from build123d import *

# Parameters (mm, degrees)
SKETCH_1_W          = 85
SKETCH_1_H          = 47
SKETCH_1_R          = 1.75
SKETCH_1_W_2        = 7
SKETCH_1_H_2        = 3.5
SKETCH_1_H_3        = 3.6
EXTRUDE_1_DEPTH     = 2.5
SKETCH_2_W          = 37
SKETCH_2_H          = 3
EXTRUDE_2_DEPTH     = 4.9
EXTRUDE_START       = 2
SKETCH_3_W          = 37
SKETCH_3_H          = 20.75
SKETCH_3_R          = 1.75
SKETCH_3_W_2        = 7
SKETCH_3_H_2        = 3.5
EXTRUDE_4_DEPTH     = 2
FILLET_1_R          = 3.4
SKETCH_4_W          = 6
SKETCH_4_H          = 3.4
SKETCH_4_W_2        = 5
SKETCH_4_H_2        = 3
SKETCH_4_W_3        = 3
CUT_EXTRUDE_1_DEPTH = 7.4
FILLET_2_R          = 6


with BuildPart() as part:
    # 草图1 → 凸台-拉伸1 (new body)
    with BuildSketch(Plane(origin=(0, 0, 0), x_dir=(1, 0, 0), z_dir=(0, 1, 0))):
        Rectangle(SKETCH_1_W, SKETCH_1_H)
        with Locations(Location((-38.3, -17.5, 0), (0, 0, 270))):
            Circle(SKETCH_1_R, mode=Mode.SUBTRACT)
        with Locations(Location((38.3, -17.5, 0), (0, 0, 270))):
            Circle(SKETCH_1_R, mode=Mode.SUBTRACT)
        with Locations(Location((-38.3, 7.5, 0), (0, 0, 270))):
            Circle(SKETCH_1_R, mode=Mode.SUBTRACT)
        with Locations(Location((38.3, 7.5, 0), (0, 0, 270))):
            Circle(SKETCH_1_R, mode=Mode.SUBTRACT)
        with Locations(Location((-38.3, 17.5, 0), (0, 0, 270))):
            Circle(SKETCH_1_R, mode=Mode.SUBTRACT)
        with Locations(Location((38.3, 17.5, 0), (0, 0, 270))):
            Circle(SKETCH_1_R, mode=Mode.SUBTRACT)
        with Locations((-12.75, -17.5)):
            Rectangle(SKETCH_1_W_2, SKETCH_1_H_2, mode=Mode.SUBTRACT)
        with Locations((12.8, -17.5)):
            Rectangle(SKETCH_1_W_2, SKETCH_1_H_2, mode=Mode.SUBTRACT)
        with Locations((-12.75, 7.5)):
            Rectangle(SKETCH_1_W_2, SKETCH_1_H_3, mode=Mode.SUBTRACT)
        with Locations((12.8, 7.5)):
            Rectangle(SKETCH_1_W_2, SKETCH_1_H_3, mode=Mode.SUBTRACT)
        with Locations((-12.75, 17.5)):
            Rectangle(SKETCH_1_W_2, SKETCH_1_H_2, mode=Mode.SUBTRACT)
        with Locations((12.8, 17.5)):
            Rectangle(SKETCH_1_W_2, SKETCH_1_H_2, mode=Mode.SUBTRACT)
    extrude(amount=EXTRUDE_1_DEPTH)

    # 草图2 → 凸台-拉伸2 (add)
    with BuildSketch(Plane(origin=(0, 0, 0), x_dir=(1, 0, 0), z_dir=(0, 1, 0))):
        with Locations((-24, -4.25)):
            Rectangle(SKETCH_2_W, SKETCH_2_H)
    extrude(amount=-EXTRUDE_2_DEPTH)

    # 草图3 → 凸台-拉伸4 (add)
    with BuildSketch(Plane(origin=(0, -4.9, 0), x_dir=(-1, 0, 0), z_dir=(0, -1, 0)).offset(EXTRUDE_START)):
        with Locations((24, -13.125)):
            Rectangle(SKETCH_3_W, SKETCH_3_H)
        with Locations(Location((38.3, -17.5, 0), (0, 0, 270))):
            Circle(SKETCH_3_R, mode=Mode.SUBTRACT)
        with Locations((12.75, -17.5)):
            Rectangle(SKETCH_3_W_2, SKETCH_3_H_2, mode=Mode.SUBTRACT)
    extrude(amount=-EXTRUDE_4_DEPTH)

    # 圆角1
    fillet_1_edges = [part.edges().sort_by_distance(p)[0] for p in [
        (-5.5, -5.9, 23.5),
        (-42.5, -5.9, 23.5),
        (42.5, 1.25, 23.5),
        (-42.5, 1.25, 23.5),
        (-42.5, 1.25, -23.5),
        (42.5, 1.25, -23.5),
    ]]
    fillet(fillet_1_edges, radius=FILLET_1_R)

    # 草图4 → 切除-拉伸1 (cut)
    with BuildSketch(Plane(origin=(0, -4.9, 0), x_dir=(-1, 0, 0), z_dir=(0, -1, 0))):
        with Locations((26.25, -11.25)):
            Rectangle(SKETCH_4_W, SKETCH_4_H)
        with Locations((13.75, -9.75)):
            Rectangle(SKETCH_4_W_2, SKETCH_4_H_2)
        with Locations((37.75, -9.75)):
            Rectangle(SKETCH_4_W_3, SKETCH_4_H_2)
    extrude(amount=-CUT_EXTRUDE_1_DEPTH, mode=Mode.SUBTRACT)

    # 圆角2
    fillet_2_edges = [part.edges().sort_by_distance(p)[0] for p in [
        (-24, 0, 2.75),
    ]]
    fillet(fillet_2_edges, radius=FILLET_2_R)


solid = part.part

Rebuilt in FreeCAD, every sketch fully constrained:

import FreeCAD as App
import Part
import Sketcher
Q = App.Units.Quantity


def edges_at(feature, points):
    """Names of the edges that pass closest to the given points."""
    edges = feature.Shape.Edges
    near = lambda p: min(range(len(edges)), key=lambda i: edges[i].distToShape(Part.Vertex(*p))[0])
    return sorted({f"Edge{near(p) + 1}" for p in points})

doc = App.newDocument("Part")
params = doc.addObject("Spreadsheet::Sheet", "Params")
for row, (alias, value) in enumerate([
    ("sketch1_diameter", "3.5 mm"),
    ("sketch1_width", "85 mm"),
    ("sketch1_width2", "7 mm"),
    ("sketch1_height", "47 mm"),
    ("sketch1_height2", "3.5 mm"),
    ("pad1_length", "2.5 mm"),
    ("sketch2_width", "37 mm"),
    ("sketch2_height", "3 mm"),
    ("pad2_length", "4.9 mm"),
    ("sketch3_diameter", "3.5 mm"),
    ("sketch3_width", "37 mm"),
    ("sketch3_width2", "7 mm"),
    ("sketch3_height", "3.5 mm"),
    ("sketch3_height2", "20.75 mm"),
    ("pad3_length", "2 mm"),
    ("fillet_radius", "3.4 mm"),
    ("sketch4_width", "6 mm"),
    ("sketch4_width2", "5 mm"),
    ("sketch4_width3", "3 mm"),
    ("sketch4_height", "3.4 mm"),
    ("pocket1_length", "7.4 mm"),
    ("fillet2_radius", "6 mm"),
], start=1):
    params.set(f"A{row}", alias)
    params.set(f"B{row}", "=" + value)
    params.setAlias(f"B{row}", alias)

body = doc.addObject("PartDesign::Body", "Body")

sketch1 = body.newObject("Sketcher::SketchObject", "Sketch")
sketch1.AttachmentSupport = (doc.getObject("XZ_Plane"), [""])
sketch1.MapMode = "FlatFace"
sketch1.addGeometry([
    Part.LineSegment(App.Vector(-42.5, -23.5, 0), App.Vector(-42.5, 23.5, 0)),
    Part.LineSegment(App.Vector(-42.5, 23.5, 0), App.Vector(42.5, 23.5, 0)),
    Part.LineSegment(App.Vector(42.5, 23.5, 0), App.Vector(42.5, -23.5, 0)),
    Part.LineSegment(App.Vector(42.5, -23.5, 0), App.Vector(-42.5, -23.5, 0)),
    Part.Circle(App.Vector(-38.3, 17.5, 0), App.Vector(0, 0, 1), 1.75),
    Part.LineSegment(App.Vector(-9.25, 19.25, 0), App.Vector(-16.25, 19.25, 0)),
    Part.LineSegment(App.Vector(-16.25, 19.25, 0), App.Vector(-16.25, 15.75, 0)),
    Part.LineSegment(App.Vector(-16.25, 15.75, 0), App.Vector(-9.25, 15.75, 0)),
    Part.LineSegment(App.Vector(-9.25, 15.75, 0), App.Vector(-9.25, 19.25, 0)),
    Part.LineSegment(App.Vector(16.3, 19.25, 0), App.Vector(9.3, 19.25, 0)),
    Part.LineSegment(App.Vector(9.3, 19.25, 0), App.Vector(9.3, 15.75, 0)),
    Part.LineSegment(App.Vector(9.3, 15.75, 0), App.Vector(16.3, 15.75, 0)),
    Part.LineSegment(App.Vector(16.3, 15.75, 0), App.Vector(16.3, 19.25, 0)),
    Part.Circle(App.Vector(38.3, 17.5, 0), App.Vector(0, 0, 1), 1.75),
    Part.Circle(App.Vector(-38.3, -7.5, 0), App.Vector(0, 0, 1), 1.75),
    Part.LineSegment(App.Vector(-9.25, -5.7, 0), App.Vector(-16.25, -5.7, 0)),
    Part.LineSegment(App.Vector(-16.25, -5.7, 0), App.Vector(-16.25, -9.3, 0)),
    Part.LineSegment(App.Vector(-16.25, -9.3, 0), App.Vector(-9.25, -9.3, 0)),
    Part.LineSegment(App.Vector(-9.25, -9.3, 0), App.Vector(-9.25, -5.7, 0)),
    Part.Circle(App.Vector(-38.3, -17.5, 0), App.Vector(0, 0, 1), 1.75),
    Part.LineSegment(App.Vector(-9.25, -15.75, 0), App.Vector(-16.25, -15.75, 0)),
    Part.LineSegment(App.Vector(-16.25, -15.75, 0), App.Vector(-16.25, -19.25, 0)),
    Part.LineSegment(App.Vector(-16.25, -19.25, 0), App.Vector(-9.25, -19.25, 0)),
    Part.LineSegment(App.Vector(-9.25, -19.25, 0), App.Vector(-9.25, -15.75, 0)),
    Part.LineSegment(App.Vector(16.3, -5.7, 0), App.Vector(9.3, -5.7, 0)),
    Part.LineSegment(App.Vector(9.3, -5.7, 0), App.Vector(9.3, -9.3, 0)),
    Part.LineSegment(App.Vector(9.3, -9.3, 0), App.Vector(16.3, -9.3, 0)),
    Part.LineSegment(App.Vector(16.3, -9.3, 0), App.Vector(16.3, -5.7, 0)),
    Part.Circle(App.Vector(38.3, -7.5, 0), App.Vector(0, 0, 1), 1.75),
    Part.LineSegment(App.Vector(16.3, -15.75, 0), App.Vector(9.3, -15.75, 0)),
    Part.LineSegment(App.Vector(9.3, -15.75, 0), App.Vector(9.3, -19.25, 0)),
    Part.LineSegment(App.Vector(9.3, -19.25, 0), App.Vector(16.3, -19.25, 0)),
    Part.LineSegment(App.Vector(16.3, -19.25, 0), App.Vector(16.3, -15.75, 0)),
    Part.Circle(App.Vector(38.3, -17.5, 0), App.Vector(0, 0, 1), 1.75),
], False)
sketch1.addConstraint([
    Sketcher.Constraint("Coincident", 0, 2, 1, 1),
    Sketcher.Constraint("Coincident", 1, 2, 2, 1),
    Sketcher.Constraint("Coincident", 2, 2, 3, 1),
    Sketcher.Constraint("Coincident", 3, 2, 0, 1),
    Sketcher.Constraint("Coincident", 5, 2, 6, 1),
    Sketcher.Constraint("Coincident", 6, 2, 7, 1),
    Sketcher.Constraint("Coincident", 7, 2, 8, 1),
    Sketcher.Constraint("Coincident", 8, 2, 5, 1),
    Sketcher.Constraint("Coincident", 9, 2, 10, 1),
    Sketcher.Constraint("Coincident", 10, 2, 11, 1),
    Sketcher.Constraint("Coincident", 11, 2, 12, 1),
    Sketcher.Constraint("Coincident", 12, 2, 9, 1),
    Sketcher.Constraint("Coincident", 15, 2, 16, 1),
    Sketcher.Constraint("Coincident", 16, 2, 17, 1),
    Sketcher.Constraint("Coincident", 17, 2, 18, 1),
    Sketcher.Constraint("Coincident", 18, 2, 15, 1),
    Sketcher.Constraint("Coincident", 20, 2, 21, 1),
    Sketcher.Constraint("Coincident", 21, 2, 22, 1),
    Sketcher.Constraint("Coincident", 22, 2, 23, 1),
    Sketcher.Constraint("Coincident", 23, 2, 20, 1),
    Sketcher.Constraint("Coincident", 24, 2, 25, 1),
    Sketcher.Constraint("Coincident", 25, 2, 26, 1),
    Sketcher.Constraint("Coincident", 26, 2, 27, 1),
    Sketcher.Constraint("Coincident", 27, 2, 24, 1),
    Sketcher.Constraint("Coincident", 29, 2, 30, 1),
    Sketcher.Constraint("Coincident", 30, 2, 31, 1),
    Sketcher.Constraint("Coincident", 31, 2, 32, 1),
    Sketcher.Constraint("Coincident", 32, 2, 29, 1),
    Sketcher.Constraint("Vertical", 0),
    Sketcher.Constraint("Horizontal", 1),
    Sketcher.Constraint("Vertical", 2),
    Sketcher.Constraint("Horizontal", 3),
    Sketcher.Constraint("Horizontal", 5),
    Sketcher.Constraint("Vertical", 6),
    Sketcher.Constraint("Horizontal", 7),
    Sketcher.Constraint("Vertical", 8),
    Sketcher.Constraint("Horizontal", 9),
    Sketcher.Constraint("Vertical", 10),
    Sketcher.Constraint("Horizontal", 11),
    Sketcher.Constraint("Vertical", 12),
    Sketcher.Constraint("Horizontal", 15),
    Sketcher.Constraint("Vertical", 16),
    Sketcher.Constraint("Horizontal", 17),
    Sketcher.Constraint("Vertical", 18),
    Sketcher.Constraint("Horizontal", 20),
    Sketcher.Constraint("Vertical", 21),
    Sketcher.Constraint("Horizontal", 22),
    Sketcher.Constraint("Vertical", 23),
    Sketcher.Constraint("Horizontal", 24),
    Sketcher.Constraint("Vertical", 25),
    Sketcher.Constraint("Horizontal", 26),
    Sketcher.Constraint("Vertical", 27),
    Sketcher.Constraint("Horizontal", 29),
    Sketcher.Constraint("Vertical", 30),
    Sketcher.Constraint("Horizontal", 31),
    Sketcher.Constraint("Vertical", 32),
    Sketcher.Constraint("Equal", 4, 13),
    Sketcher.Constraint("Equal", 13, 14),
    Sketcher.Constraint("Equal", 14, 19),
    Sketcher.Constraint("Equal", 19, 28),
    Sketcher.Constraint("Equal", 28, 33),
    Sketcher.Constraint("Symmetric", 13, 3, 19, 3, -1, 1),
    Sketcher.Constraint("Symmetric", 4, 3, 33, 3, -1, 1),
    Sketcher.Constraint("Symmetric", 0, 2, 2, 2, -1, 1),
    Sketcher.Constraint("Symmetric", 4, 3, 13, 3, -2),
    Sketcher.Constraint("Symmetric", 14, 3, 28, 3, -2),
    Sketcher.Constraint("Symmetric", 6, 2, 20, 2, -1),
    Sketcher.Constraint("Symmetric", 8, 2, 22, 2, -1),
    Sketcher.Constraint("Symmetric", 10, 2, 29, 2, -1),
    Sketcher.Constraint("Symmetric", 12, 2, 31, 2, -1),
    Sketcher.Constraint("Horizontal", 8, 2, 9, 2),
    Sketcher.Constraint("Horizontal", 7, 2, 10, 2),
    Sketcher.Constraint("Horizontal", 18, 2, 24, 2),
    Sketcher.Constraint("Horizontal", 17, 2, 25, 2),
    Sketcher.Constraint("Vertical", 4, 3, 14, 3),
    Sketcher.Constraint("Vertical", 6, 2, 15, 2),
    Sketcher.Constraint("Vertical", 8, 2, 17, 2),
    Sketcher.Constraint("Vertical", 10, 2, 24, 2),
    Sketcher.Constraint("Vertical", 12, 2, 26, 2),
    Sketcher.Constraint("Equal", 7, 9),
    Sketcher.Constraint("Diameter", 4, Q("3.5 mm")),
    Sketcher.Constraint("DistanceX", 1, 1, 1, 2, Q("85 mm")),
    Sketcher.Constraint("DistanceX", 5, 2, 5, 1, Q("7 mm")),
    Sketcher.Constraint("DistanceY", 0, 1, 0, 2, Q("47 mm")),
    Sketcher.Constraint("DistanceY", 6, 2, 6, 1, Q("3.5 mm")),
    Sketcher.Constraint("DistanceY", 16, 2, 16, 1, Q("3.6 mm")),
    Sketcher.Constraint("DistanceY", 14, 3, 4, 3, Q("25 mm")),
    Sketcher.Constraint("DistanceY", 19, 3, 14, 3, Q("10 mm")),
    Sketcher.Constraint("DistanceX", 9, 2, 13, 3, Q("29 mm")),
    Sketcher.Constraint("DistanceX", 4, 3, -1, 1, Q("38.3 mm")),
    Sketcher.Constraint("DistanceY", 15, 2, -1, 1, Q("5.7 mm")),
    Sketcher.Constraint("DistanceX", 5, 2, -1, 1, Q("16.25 mm")),
    Sketcher.Constraint("DistanceY", -1, 1, 5, 2, Q("19.25 mm")),
])
sketch1.setExpression("Constraints[80]", "Params.sketch1_diameter")
sketch1.setExpression("Constraints[81]", "Params.sketch1_width")
sketch1.setExpression("Constraints[82]", "Params.sketch1_width2")
sketch1.setExpression("Constraints[83]", "Params.sketch1_height")
sketch1.setExpression("Constraints[84]", "Params.sketch1_height2")
pad1 = body.newObject("PartDesign::Pad", "Pad")
pad1.Profile = sketch1
pad1.setExpression("Length", "Params.pad1_length")
pad1.Reversed = True

sketch2 = body.newObject("Sketcher::SketchObject", "Sketch001")
sketch2.AttachmentSupport = (doc.getObject("XZ_Plane"), [""])
sketch2.MapMode = "FlatFace"
sketch2.addGeometry([
    Part.LineSegment(App.Vector(-42.5, 2.75, 0), App.Vector(-42.5, 5.75, 0)),
    Part.LineSegment(App.Vector(-42.5, 5.75, 0), App.Vector(-5.5, 5.75, 0)),
    Part.LineSegment(App.Vector(-5.5, 5.75, 0), App.Vector(-5.5, 2.75, 0)),
    Part.LineSegment(App.Vector(-5.5, 2.75, 0), App.Vector(-42.5, 2.75, 0)),
], False)
sketch2.addConstraint([
    Sketcher.Constraint("Coincident", 0, 2, 1, 1),
    Sketcher.Constraint("Coincident", 1, 2, 2, 1),
    Sketcher.Constraint("Coincident", 2, 2, 3, 1),
    Sketcher.Constraint("Coincident", 3, 2, 0, 1),
    Sketcher.Constraint("Vertical", 0),
    Sketcher.Constraint("Horizontal", 1),
    Sketcher.Constraint("Vertical", 2),
    Sketcher.Constraint("Horizontal", 3),
    Sketcher.Constraint("DistanceX", 1, 1, 1, 2, Q("37 mm")),
    Sketcher.Constraint("DistanceY", 0, 1, 0, 2, Q("3 mm")),
    Sketcher.Constraint("DistanceX", 0, 2, -1, 1, Q("42.5 mm")),
    Sketcher.Constraint("DistanceY", -1, 1, 0, 2, Q("5.75 mm")),
])
sketch2.setExpression("Constraints[8]", "Params.sketch2_width")
sketch2.setExpression("Constraints[9]", "Params.sketch2_height")
pad2 = body.newObject("PartDesign::Pad", "Pad001")
pad2.Profile = sketch2
pad2.setExpression("Length", "Params.pad2_length")

sketch3 = body.newObject("Sketcher::SketchObject", "Sketch002")
sketch3.AttachmentSupport = (doc.getObject("XZ_Plane"), [""])
sketch3.MapMode = "FlatFace"
sketch3.AttachmentOffset = App.Placement(App.Vector(0, 0, 6.9), App.Rotation())
sketch3.addGeometry([
    Part.LineSegment(App.Vector(-5.5, 2.75, 0), App.Vector(-5.5, 23.5, 0)),
    Part.LineSegment(App.Vector(-5.5, 23.5, 0), App.Vector(-42.5, 23.5, 0)),
    Part.LineSegment(App.Vector(-42.5, 23.5, 0), App.Vector(-42.5, 2.75, 0)),
    Part.LineSegment(App.Vector(-42.5, 2.75, 0), App.Vector(-5.5, 2.75, 0)),
    Part.LineSegment(App.Vector(-16.25, 19.25, 0), App.Vector(-9.25, 19.25, 0)),
    Part.LineSegment(App.Vector(-9.25, 19.25, 0), App.Vector(-9.25, 15.75, 0)),
    Part.LineSegment(App.Vector(-9.25, 15.75, 0), App.Vector(-16.25, 15.75, 0)),
    Part.LineSegment(App.Vector(-16.25, 15.75, 0), App.Vector(-16.25, 19.25, 0)),
    Part.Circle(App.Vector(-38.3, 17.5, 0), App.Vector(0, 0, 1), 1.75),
], False)
sketch3.addConstraint([
    Sketcher.Constraint("Coincident", 0, 2, 1, 1),
    Sketcher.Constraint("Coincident", 1, 2, 2, 1),
    Sketcher.Constraint("Coincident", 2, 2, 3, 1),
    Sketcher.Constraint("Coincident", 3, 2, 0, 1),
    Sketcher.Constraint("Coincident", 4, 2, 5, 1),
    Sketcher.Constraint("Coincident", 5, 2, 6, 1),
    Sketcher.Constraint("Coincident", 6, 2, 7, 1),
    Sketcher.Constraint("Coincident", 7, 2, 4, 1),
    Sketcher.Constraint("Vertical", 0),
    Sketcher.Constraint("Horizontal", 1),
    Sketcher.Constraint("Vertical", 2),
    Sketcher.Constraint("Horizontal", 3),
    Sketcher.Constraint("Horizontal", 4),
    Sketcher.Constraint("Vertical", 5),
    Sketcher.Constraint("Horizontal", 6),
    Sketcher.Constraint("Vertical", 7),
    Sketcher.Constraint("Diameter", 8, Q("3.5 mm")),
    Sketcher.Constraint("DistanceX", 1, 2, 1, 1, Q("37 mm")),
    Sketcher.Constraint("DistanceX", 4, 1, 4, 2, Q("7 mm")),
    Sketcher.Constraint("DistanceY", 5, 2, 5, 1, Q("3.5 mm")),
    Sketcher.Constraint("DistanceY", 8, 3, 0, 2, Q("6 mm")),
    Sketcher.Constraint("DistanceY", 3, 2, 5, 2, Q("13 mm")),
    Sketcher.Constraint("DistanceY", 0, 1, 0, 2, Q("20.75 mm")),
    Sketcher.Constraint("DistanceX", 8, 3, -1, 1, Q("38.3 mm")),
    Sketcher.Constraint("DistanceY", -1, 1, 8, 3, Q("17.5 mm")),
    Sketcher.Constraint("DistanceX", 0, 2, -1, 1, Q("5.5 mm")),
    Sketcher.Constraint("DistanceX", 4, 2, -1, 1, Q("9.25 mm")),
])
sketch3.setExpression("Constraints[16]", "Params.sketch3_diameter")
sketch3.setExpression("Constraints[17]", "Params.sketch3_width")
sketch3.setExpression("Constraints[18]", "Params.sketch3_width2")
sketch3.setExpression("Constraints[19]", "Params.sketch3_height")
sketch3.setExpression("Constraints[22]", "Params.sketch3_height2")
pad3 = body.newObject("PartDesign::Pad", "Pad002")
pad3.Profile = sketch3
pad3.setExpression("Length", "Params.pad3_length")
pad3.Reversed = True
doc.recompute()

fillet = body.newObject("PartDesign::Fillet", "Fillet")
fillet.Base = (pad3, edges_at(pad3, [
    (-5.5, -5.9, 23.5),
    (-42.5, -5.9, 23.5),
    (42.5, 1.25, 23.5),
    (-42.5, 1.25, 23.5),
    (-42.5, 1.25, -23.5),
    (42.5, 1.25, -23.5),
]))
fillet.setExpression("Radius", "Params.fillet_radius")

sketch4 = body.newObject("Sketcher::SketchObject", "Sketch003")
sketch4.AttachmentSupport = (doc.getObject("XZ_Plane"), [""])
sketch4.MapMode = "FlatFace"
sketch4.AttachmentOffset = App.Placement(App.Vector(0, 0, 4.9), App.Rotation())
sketch4.addGeometry([
    Part.LineSegment(App.Vector(-23.25, 9.55, 0), App.Vector(-23.25, 12.95, 0)),
    Part.LineSegment(App.Vector(-23.25, 12.95, 0), App.Vector(-29.25, 12.95, 0)),
    Part.LineSegment(App.Vector(-29.25, 12.95, 0), App.Vector(-29.25, 9.55, 0)),
    Part.LineSegment(App.Vector(-29.25, 9.55, 0), App.Vector(-23.25, 9.55, 0)),
    Part.LineSegment(App.Vector(-11.25, 8.25, 0), App.Vector(-11.25, 11.25, 0)),
    Part.LineSegment(App.Vector(-11.25, 11.25, 0), App.Vector(-16.25, 11.25, 0)),
    Part.LineSegment(App.Vector(-16.25, 11.25, 0), App.Vector(-16.25, 8.25, 0)),
    Part.LineSegment(App.Vector(-16.25, 8.25, 0), App.Vector(-11.25, 8.25, 0)),
    Part.LineSegment(App.Vector(-36.25, 8.25, 0), App.Vector(-36.25, 11.25, 0)),
    Part.LineSegment(App.Vector(-36.25, 11.25, 0), App.Vector(-39.25, 11.25, 0)),
    Part.LineSegment(App.Vector(-39.25, 11.25, 0), App.Vector(-39.25, 8.25, 0)),
    Part.LineSegment(App.Vector(-39.25, 8.25, 0), App.Vector(-36.25, 8.25, 0)),
], False)
sketch4.addConstraint([
    Sketcher.Constraint("Coincident", 0, 2, 1, 1),
    Sketcher.Constraint("Coincident", 1, 2, 2, 1),
    Sketcher.Constraint("Coincident", 2, 2, 3, 1),
    Sketcher.Constraint("Coincident", 3, 2, 0, 1),
    Sketcher.Constraint("Coincident", 4, 2, 5, 1),
    Sketcher.Constraint("Coincident", 5, 2, 6, 1),
    Sketcher.Constraint("Coincident", 6, 2, 7, 1),
    Sketcher.Constraint("Coincident", 7, 2, 4, 1),
    Sketcher.Constraint("Coincident", 8, 2, 9, 1),
    Sketcher.Constraint("Coincident", 9, 2, 10, 1),
    Sketcher.Constraint("Coincident", 10, 2, 11, 1),
    Sketcher.Constraint("Coincident", 11, 2, 8, 1),
    Sketcher.Constraint("Vertical", 0),
    Sketcher.Constraint("Horizontal", 1),
    Sketcher.Constraint("Vertical", 2),
    Sketcher.Constraint("Horizontal", 3),
    Sketcher.Constraint("Vertical", 4),
    Sketcher.Constraint("Horizontal", 5),
    Sketcher.Constraint("Vertical", 6),
    Sketcher.Constraint("Horizontal", 7),
    Sketcher.Constraint("Vertical", 8),
    Sketcher.Constraint("Horizontal", 9),
    Sketcher.Constraint("Vertical", 10),
    Sketcher.Constraint("Horizontal", 11),
    Sketcher.Constraint("Horizontal", 5, 2, 8, 2),
    Sketcher.Constraint("Horizontal", 7, 2, 10, 2),
    Sketcher.Constraint("Equal", 11, 4),
    Sketcher.Constraint("DistanceX", 1, 2, 1, 1, Q("6 mm")),
    Sketcher.Constraint("DistanceX", 5, 2, 5, 1, Q("5 mm")),
    Sketcher.Constraint("DistanceX", 9, 2, 9, 1, Q("3 mm")),
    Sketcher.Constraint("DistanceY", 0, 1, 0, 2, Q("3.4 mm")),
    Sketcher.Constraint("DistanceX", 0, 2, 4, 2, Q("12 mm")),
    Sketcher.Constraint("DistanceX", 8, 2, 1, 2, Q("7 mm")),
    Sketcher.Constraint("DistanceY", 4, 2, 0, 2, Q("1.7 mm")),
    Sketcher.Constraint("DistanceX", 0, 2, -1, 1, Q("23.25 mm")),
    Sketcher.Constraint("DistanceY", -1, 1, 0, 2, Q("12.95 mm")),
])
sketch4.setExpression("Constraints[27]", "Params.sketch4_width")
sketch4.setExpression("Constraints[28]", "Params.sketch4_width2")
sketch4.setExpression("Constraints[29]", "Params.sketch4_width3")
sketch4.setExpression("Constraints[30]", "Params.sketch4_height")
pocket1 = body.newObject("PartDesign::Pocket", "Pocket")
pocket1.Profile = sketch4
pocket1.setExpression("Length", "Params.pocket1_length")
doc.recompute()

fillet2 = body.newObject("PartDesign::Fillet", "Fillet001")
fillet2.Base = (pocket1, edges_at(pocket1, [(-24, 0, 2.75)]))
fillet2.setExpression("Radius", "Params.fillet2_radius")

doc.recompute()
